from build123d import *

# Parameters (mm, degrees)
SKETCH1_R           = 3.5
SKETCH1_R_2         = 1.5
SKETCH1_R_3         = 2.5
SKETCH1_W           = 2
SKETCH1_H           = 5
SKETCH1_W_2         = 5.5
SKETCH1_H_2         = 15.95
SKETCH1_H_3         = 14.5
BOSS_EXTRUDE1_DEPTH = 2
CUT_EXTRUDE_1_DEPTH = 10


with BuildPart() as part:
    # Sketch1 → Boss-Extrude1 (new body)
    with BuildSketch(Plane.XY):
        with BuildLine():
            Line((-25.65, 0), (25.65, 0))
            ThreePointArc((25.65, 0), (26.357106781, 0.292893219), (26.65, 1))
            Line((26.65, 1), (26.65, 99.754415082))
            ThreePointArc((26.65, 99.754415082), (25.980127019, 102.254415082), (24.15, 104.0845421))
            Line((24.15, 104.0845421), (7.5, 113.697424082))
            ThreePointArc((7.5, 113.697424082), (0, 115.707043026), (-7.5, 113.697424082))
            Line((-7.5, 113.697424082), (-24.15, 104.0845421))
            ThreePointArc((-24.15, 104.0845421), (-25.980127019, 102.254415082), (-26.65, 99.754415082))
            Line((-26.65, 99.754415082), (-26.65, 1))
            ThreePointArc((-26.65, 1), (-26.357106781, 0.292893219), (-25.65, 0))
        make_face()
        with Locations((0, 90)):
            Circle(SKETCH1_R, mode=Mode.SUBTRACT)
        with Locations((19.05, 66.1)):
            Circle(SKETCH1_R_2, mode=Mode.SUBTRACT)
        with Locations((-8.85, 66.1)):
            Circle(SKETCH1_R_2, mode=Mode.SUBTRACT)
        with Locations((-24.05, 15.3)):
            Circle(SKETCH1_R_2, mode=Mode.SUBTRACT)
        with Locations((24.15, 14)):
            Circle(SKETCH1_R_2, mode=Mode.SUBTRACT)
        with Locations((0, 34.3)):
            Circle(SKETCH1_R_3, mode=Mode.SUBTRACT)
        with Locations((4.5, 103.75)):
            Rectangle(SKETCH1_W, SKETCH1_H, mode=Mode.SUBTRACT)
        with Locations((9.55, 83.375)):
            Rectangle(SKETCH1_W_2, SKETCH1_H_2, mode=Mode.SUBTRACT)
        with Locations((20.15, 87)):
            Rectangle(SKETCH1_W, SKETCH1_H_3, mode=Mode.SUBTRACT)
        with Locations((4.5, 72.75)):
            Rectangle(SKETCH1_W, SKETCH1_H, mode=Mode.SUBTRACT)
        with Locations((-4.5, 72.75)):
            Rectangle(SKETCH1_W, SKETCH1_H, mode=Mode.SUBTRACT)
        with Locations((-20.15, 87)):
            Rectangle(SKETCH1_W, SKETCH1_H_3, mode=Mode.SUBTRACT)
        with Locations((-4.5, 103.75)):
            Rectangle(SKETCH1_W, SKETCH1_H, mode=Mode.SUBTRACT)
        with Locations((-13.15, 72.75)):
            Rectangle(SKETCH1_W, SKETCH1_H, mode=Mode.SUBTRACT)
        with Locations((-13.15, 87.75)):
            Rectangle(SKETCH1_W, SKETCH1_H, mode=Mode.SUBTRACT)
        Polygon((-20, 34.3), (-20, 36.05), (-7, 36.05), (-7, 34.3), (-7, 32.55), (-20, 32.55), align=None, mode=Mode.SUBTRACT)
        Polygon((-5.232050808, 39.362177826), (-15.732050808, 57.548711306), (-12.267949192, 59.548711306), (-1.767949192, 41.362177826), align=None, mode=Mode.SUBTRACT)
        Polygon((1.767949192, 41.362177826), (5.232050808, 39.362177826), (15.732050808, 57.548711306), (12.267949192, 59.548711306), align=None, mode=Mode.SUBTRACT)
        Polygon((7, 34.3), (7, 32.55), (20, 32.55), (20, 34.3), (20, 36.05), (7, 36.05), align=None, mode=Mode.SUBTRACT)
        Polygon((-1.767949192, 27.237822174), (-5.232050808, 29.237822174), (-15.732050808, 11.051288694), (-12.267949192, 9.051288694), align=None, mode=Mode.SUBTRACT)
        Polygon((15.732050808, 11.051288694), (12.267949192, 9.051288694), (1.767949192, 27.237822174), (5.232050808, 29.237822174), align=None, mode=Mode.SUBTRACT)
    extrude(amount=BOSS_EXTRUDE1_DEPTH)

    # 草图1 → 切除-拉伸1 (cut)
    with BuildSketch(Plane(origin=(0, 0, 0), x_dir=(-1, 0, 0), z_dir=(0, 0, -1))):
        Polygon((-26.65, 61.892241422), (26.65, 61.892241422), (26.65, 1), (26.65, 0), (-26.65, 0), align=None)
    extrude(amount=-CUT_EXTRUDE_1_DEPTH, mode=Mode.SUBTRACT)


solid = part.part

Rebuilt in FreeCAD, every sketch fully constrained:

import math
import FreeCAD as App
import Part
import Sketcher
Q = App.Units.Quantity

doc = App.newDocument("Part")
body = doc.addObject("PartDesign::Body", "Body")

# Sketch on XY plane
sketch1 = body.newObject("Sketcher::SketchObject", "Sketch")
sketch1.AttachmentSupport = (doc.getObject("XY_Plane"), [""])
sketch1.MapMode = "FlatFace"
sketch1.addGeometry([
    Part.LineSegment(App.Vector(-25.6, 0, 0), App.Vector(25.6, 0, 0)),  # 0
    Part.ArcOfCircle(Part.Circle(App.Vector(25.6, 1, 0), App.Vector(0, 0, 1), 1), math.radians(-90), math.radians(0)),  # 1
    Part.LineSegment(App.Vector(26.6, 1, 0), App.Vector(26.6, 99.8, 0)),  # 2
    Part.ArcOfCircle(Part.Circle(App.Vector(21.7, 99.8, 0), App.Vector(0, 0, 1), 5), math.radians(0), math.radians(60)),  # 3
    Part.LineSegment(App.Vector(24.1, 104.1, 0), App.Vector(7.5, 113.7, 0)),  # 4
    Part.ArcOfCircle(Part.Circle(App.Vector(0, 100.7, 0), App.Vector(0, 0, 1), 15), math.radians(60), math.radians(120)),  # 5
    Part.LineSegment(App.Vector(-7.5, 113.7, 0), App.Vector(-24.1, 104.1, 0)),  # 6
    Part.ArcOfCircle(Part.Circle(App.Vector(-21.7, 99.8, 0), App.Vector(0, 0, 1), 5), math.radians(120), math.radians(180)),  # 7
    Part.LineSegment(App.Vector(-26.6, 99.8, 0), App.Vector(-26.6, 1, 0)),  # 8
    Part.ArcOfCircle(Part.Circle(App.Vector(-25.6, 1, 0), App.Vector(0, 0, 1), 1), math.radians(-180), math.radians(-90)),  # 9
    Part.Circle(App.Vector(-24.1, 15.3, 0), App.Vector(0, 0, 1), 1.5),  # 10
    Part.LineSegment(App.Vector(-5.2, 29.2, 0), App.Vector(-1.8, 27.2, 0)),  # 11
    Part.LineSegment(App.Vector(-1.8, 27.2, 0), App.Vector(-12.3, 9.1, 0)),  # 12
    Part.LineSegment(App.Vector(-12.3, 9.1, 0), App.Vector(-15.7, 11.1, 0)),  # 13
    Part.LineSegment(App.Vector(-15.7, 11.1, 0), App.Vector(-5.2, 29.2, 0)),  # 14
    Part.LineSegment(App.Vector(-20, 32.5, 0), App.Vector(-20, 36, 0)),  # 15
    Part.LineSegment(App.Vector(-20, 36, 0), App.Vector(-7, 36, 0)),  # 16
    Part.LineSegment(App.Vector(-7, 36, 0), App.Vector(-7, 32.5, 0)),  # 17
    Part.LineSegment(App.Vector(-7, 32.5, 0), App.Vector(-20, 32.5, 0)),  # 18
    Part.Circle(App.Vector(0, 34.3, 0), App.Vector(0, 0, 1), 2.5),  # 19
    Part.LineSegment(App.Vector(-1.8, 41.4, 0), App.Vector(-5.2, 39.4, 0)),  # 20
    Part.LineSegment(App.Vector(-5.2, 39.4, 0), App.Vector(-15.7, 57.5, 0)),  # 21
    Part.LineSegment(App.Vector(-15.7, 57.5, 0), App.Vector(-12.3, 59.5, 0)),  # 22
    Part.LineSegment(App.Vector(-12.3, 59.5, 0), App.Vector(-1.8, 41.4, 0)),  # 23
    Part.LineSegment(App.Vector(5.2, 29.2, 0), App.Vector(15.7, 11.1, 0)),  # 24
    Part.LineSegment(App.Vector(15.7, 11.1, 0), App.Vector(12.3, 9.1, 0)),  # 25
    Part.LineSegment(App.Vector(12.3, 9.1, 0), App.Vector(1.8, 27.2, 0)),  # 26
    Part.LineSegment(App.Vector(1.8, 27.2, 0), App.Vector(5.2, 29.2, 0)),  # 27
    Part.Circle(App.Vector(24.1, 14, 0), App.Vector(0, 0, 1), 1.5),  # 28
    Part.LineSegment(App.Vector(5.2, 39.4, 0), App.Vector(1.8, 41.4, 0)),  # 29
    Part.LineSegment(App.Vector(1.8, 41.4, 0), App.Vector(12.3, 59.5, 0)),  # 30
    Part.LineSegment(App.Vector(12.3, 59.5, 0), App.Vector(15.7, 57.5, 0)),  # 31
    Part.LineSegment(App.Vector(15.7, 57.5, 0), App.Vector(5.2, 39.4, 0)),  # 32
    Part.LineSegment(App.Vector(7, 32.5, 0), App.Vector(7, 36, 0)),  # 33
    Part.LineSegment(App.Vector(7, 36, 0), App.Vector(20, 36, 0)),  # 34
    Part.LineSegment(App.Vector(20, 36, 0), App.Vector(20, 32.5, 0)),  # 35
    Part.LineSegment(App.Vector(20, 32.5, 0), App.Vector(7, 32.5, 0)),  # 36
    Part.LineSegment(App.Vector(-12.2, 70.2, 0), App.Vector(-14.2, 70.2, 0)),  # 37
    Part.LineSegment(App.Vector(-14.2, 70.2, 0), App.Vector(-14.2, 75.2, 0)),  # 38
    Part.LineSegment(App.Vector(-14.2, 75.2, 0), App.Vector(-12.2, 75.2, 0)),  # 39
    Part.LineSegment(App.Vector(-12.2, 75.2, 0), App.Vector(-12.2, 70.2, 0)),  # 40
    Part.Circle(App.Vector(-8.8, 66.1, 0), App.Vector(0, 0, 1), 1.5),  # 41
    Part.LineSegment(App.Vector(-3.5, 70.2, 0), App.Vector(-5.5, 70.2, 0)),  # 42
    Part.LineSegment(App.Vector(-5.5, 70.2, 0), App.Vector(-5.5, 75.2, 0)),  # 43
    Part.LineSegment(App.Vector(-5.5, 75.2, 0), App.Vector(-3.5, 75.2, 0)),  # 44
    Part.LineSegment(App.Vector(-3.5, 75.2, 0), App.Vector(-3.5, 70.2, 0)),  # 45
    Part.LineSegment(App.Vector(-19.1, 79.8, 0), App.Vector(-21.1, 79.8, 0)),  # 46
    Part.LineSegment(App.Vector(-21.1, 79.8, 0), App.Vector(-21.1, 94.2, 0)),  # 47
    Part.LineSegment(App.Vector(-21.1, 94.2, 0), App.Vector(-19.1, 94.2, 0)),  # 48
    Part.LineSegment(App.Vector(-19.1, 94.2, 0), App.Vector(-19.1, 79.8, 0)),  # 49
    Part.LineSegment(App.Vector(-12.2, 85.2, 0), App.Vector(-14.2, 85.2, 0)),  # 50
    Part.LineSegment(App.Vector(-14.2, 85.2, 0), App.Vector(-14.2, 90.2, 0)),  # 51
    Part.LineSegment(App.Vector(-14.2, 90.2, 0), App.Vector(-12.2, 90.2, 0)),  # 52
    Part.LineSegment(App.Vector(-12.2, 90.2, 0), App.Vector(-12.2, 85.2, 0)),  # 53
    Part.Circle(App.Vector(0, 90, 0), App.Vector(0, 0, 1), 3.5),  # 54
    Part.LineSegment(App.Vector(-3.5, 101.2, 0), App.Vector(-5.5, 101.2, 0)),  # 55
    Part.LineSegment(App.Vector(-5.5, 101.2, 0), App.Vector(-5.5, 106.2, 0)),  # 56
    Part.LineSegment(App.Vector(-5.5, 106.2, 0), App.Vector(-3.5, 106.2, 0)),  # 57
    Part.LineSegment(App.Vector(-3.5, 106.2, 0), App.Vector(-3.5, 101.2, 0)),  # 58
    Part.LineSegment(App.Vector(5.5, 70.2, 0), App.Vector(3.5, 70.2, 0)),  # 59
    Part.LineSegment(App.Vector(3.5, 70.2, 0), App.Vector(3.5, 75.2, 0)),  # 60
    Part.LineSegment(App.Vector(3.5, 75.2, 0), App.Vector(5.5, 75.2, 0)),  # 61
    Part.LineSegment(App.Vector(5.5, 75.2, 0), App.Vector(5.5, 70.2, 0)),  # 62
    Part.Circle(App.Vector(19.1, 66.1, 0), App.Vector(0, 0, 1), 1.5),  # 63
    Part.LineSegment(App.Vector(12.3, 75.4, 0), App.Vector(6.8, 75.4, 0)),  # 64
    Part.LineSegment(App.Vector(6.8, 75.4, 0), App.Vector(6.8, 91.3, 0)),  # 65
    Part.LineSegment(App.Vector(6.8, 91.3, 0), App.Vector(12.3, 91.3, 0)),  # 66
    Part.LineSegment(App.Vector(12.3, 91.3, 0), App.Vector(12.3, 75.4, 0)),  # 67
    Part.LineSegment(App.Vector(5.5, 101.2, 0), App.Vector(3.5, 101.2, 0)),  # 68
    Part.LineSegment(App.Vector(3.5, 101.2, 0), App.Vector(3.5, 106.2, 0)),  # 69
    Part.LineSegment(App.Vector(3.5, 106.2, 0), App.Vector(5.5, 106.2, 0)),  # 70
    Part.LineSegment(App.Vector(5.5, 106.2, 0), App.Vector(5.5, 101.2, 0)),  # 71
    Part.LineSegment(App.Vector(21.1, 79.8, 0), App.Vector(19.1, 79.8, 0)),  # 72
    Part.LineSegment(App.Vector(19.1, 79.8, 0), App.Vector(19.1, 94.2, 0)),  # 73
    Part.LineSegment(App.Vector(19.1, 94.2, 0), App.Vector(21.1, 94.2, 0)),  # 74
    Part.LineSegment(App.Vector(21.1, 94.2, 0), App.Vector(21.1, 79.8, 0)),  # 75
], False)
sketch1.addConstraint([
    Sketcher.Constraint("Tangent", 0, 2, 1, 1),
    Sketcher.Constraint("Tangent", 1, 2, 2, 1),
    Sketcher.Constraint("Tangent", 2, 2, 3, 1),
    Sketcher.Constraint("Tangent", 3, 2, 4, 1),
    Sketcher.Constraint("Tangent", 4, 2, 5, 1),
    Sketcher.Constraint("Tangent", 5, 2, 6, 1),
    Sketcher.Constraint("Tangent", 6, 2, 7, 1),
    Sketcher.Constraint("Tangent", 7, 2, 8, 1),
    Sketcher.Constraint("Tangent", 8, 2, 9, 1),
    Sketcher.Constraint("Tangent", 9, 2, 0, 1),
    Sketcher.Constraint("Coincident", 11, 2, 12, 1),
    Sketcher.Constraint("Coincident", 12, 2, 13, 1),
    Sketcher.Constraint("Coincident", 13, 2, 14, 1),
    Sketcher.Constraint("Coincident", 14, 2, 11, 1),
    Sketcher.Constraint("Coincident", 15, 2, 16, 1),
    Sketcher.Constraint("Coincident", 16, 2, 17, 1),
    Sketcher.Constraint("Coincident", 17, 2, 18, 1),
    Sketcher.Constraint("Coincident", 18, 2, 15, 1),
    Sketcher.Constraint("Coincident", 20, 2, 21, 1),
    Sketcher.Constraint("Coincident", 21, 2, 22, 1),
    Sketcher.Constraint("Coincident", 22, 2, 23, 1),
    Sketcher.Constraint("Coincident", 23, 2, 20, 1),
    Sketcher.Constraint("Coincident", 24, 2, 25, 1),
    Sketcher.Constraint("Coincident", 25, 2, 26, 1),
    Sketcher.Constraint("Coincident", 26, 2, 27, 1),
    Sketcher.Constraint("Coincident", 27, 2, 24, 1),
    Sketcher.Constraint("Coincident", 29, 2, 30, 1),
    Sketcher.Constraint("Coincident", 30, 2, 31, 1),
    Sketcher.Constraint("Coincident", 31, 2, 32, 1),
    Sketcher.Constraint("Coincident", 32, 2, 29, 1),
    Sketcher.Constraint("Coincident", 33, 2, 34, 1),
    Sketcher.Constraint("Coincident", 34, 2, 35, 1),
    Sketcher.Constraint("Coincident", 35, 2, 36, 1),
    Sketcher.Constraint("Coincident", 36, 2, 33, 1),
    Sketcher.Constraint("Coincident", 37, 2, 38, 1),
    Sketcher.Constraint("Coincident", 38, 2, 39, 1),
    Sketcher.Constraint("Coincident", 39, 2, 40, 1),
    Sketcher.Constraint("Coincident", 40, 2, 37, 1),
    Sketcher.Constraint("Coincident", 42, 2, 43, 1),
    Sketcher.Constraint("Coincident", 43, 2, 44, 1),
    Sketcher.Constraint("Coincident", 44, 2, 45, 1),
    Sketcher.Constraint("Coincident", 45, 2, 42, 1),
    Sketcher.Constraint("Coincident", 46, 2, 47, 1),
    Sketcher.Constraint("Coincident", 47, 2, 48, 1),
    Sketcher.Constraint("Coincident", 48, 2, 49, 1),
    Sketcher.Constraint("Coincident", 49, 2, 46, 1),
    Sketcher.Constraint("Coincident", 50, 2, 51, 1),
    Sketcher.Constraint("Coincident", 51, 2, 52, 1),
    Sketcher.Constraint("Coincident", 52, 2, 53, 1),
    Sketcher.Constraint("Coincident", 53, 2, 50, 1),
    Sketcher.Constraint("Coincident", 55, 2, 56, 1),
    Sketcher.Constraint("Coincident", 56, 2, 57, 1),
    Sketcher.Constraint("Coincident", 57, 2, 58, 1),
    Sketcher.Constraint("Coincident", 58, 2, 55, 1),
    Sketcher.Constraint("Coincident", 59, 2, 60, 1),
    Sketcher.Constraint("Coincident", 60, 2, 61, 1),
    Sketcher.Constraint("Coincident", 61, 2, 62, 1),
    Sketcher.Constraint("Coincident", 62, 2, 59, 1),
    Sketcher.Constraint("Coincident", 64, 2, 65, 1),
    Sketcher.Constraint("Coincident", 65, 2, 66, 1),
    Sketcher.Constraint("Coincident", 66, 2, 67, 1),
    Sketcher.Constraint("Coincident", 67, 2, 64, 1),
    Sketcher.Constraint("Coincident", 68, 2, 69, 1),
    Sketcher.Constraint("Coincident", 69, 2, 70, 1),
    Sketcher.Constraint("Coincident", 70, 2, 71, 1),
    Sketcher.Constraint("Coincident", 71, 2, 68, 1),
    Sketcher.Constraint("Coincident", 72, 2, 73, 1),
    Sketcher.Constraint("Coincident", 73, 2, 74, 1),
    Sketcher.Constraint("Coincident", 74, 2, 75, 1),
    Sketcher.Constraint("Coincident", 75, 2, 72, 1),
    Sketcher.Constraint("Horizontal", 0),
    Sketcher.Constraint("Vertical", 2),
    Sketcher.Constraint("Vertical", 8),
    Sketcher.Constraint("Vertical", 15),
    Sketcher.Constraint("Horizontal", 16),
    Sketcher.Constraint("Vertical", 17),
    Sketcher.Constraint("Horizontal", 18),
    Sketcher.Constraint("Vertical", 33),
    Sketcher.Constraint("Horizontal", 34),
    Sketcher.Constraint("Vertical", 35),
    Sketcher.Constraint("Horizontal", 36),
    Sketcher.Constraint("Horizontal", 37),
    Sketcher.Constraint("Vertical", 38),
    Sketcher.Constraint("Horizontal", 39),
    Sketcher.Constraint("Vertical", 40),
    Sketcher.Constraint("Horizontal", 42),
    Sketcher.Constraint("Vertical", 43),
    Sketcher.Constraint("Horizontal", 44),
    Sketcher.Constraint("Vertical", 45),
    Sketcher.Constraint("Horizontal", 46),
    Sketcher.Constraint("Vertical", 47),
    Sketcher.Constraint("Horizontal", 48),
    Sketcher.Constraint("Vertical", 49),
    Sketcher.Constraint("Horizontal", 50),
    Sketcher.Constraint("Vertical", 51),
    Sketcher.Constraint("Horizontal", 52),
    Sketcher.Constraint("Vertical", 53),
    Sketcher.Constraint("Horizontal", 55),
    Sketcher.Constraint("Vertical", 56),
    Sketcher.Constraint("Horizontal", 57),
    Sketcher.Constraint("Vertical", 58),
    Sketcher.Constraint("Horizontal", 59),
    Sketcher.Constraint("Vertical", 60),
    Sketcher.Constraint("Horizontal", 61),
    Sketcher.Constraint("Vertical", 62),
    Sketcher.Constraint("Horizontal", 64),
    Sketcher.Constraint("Vertical", 65),
    Sketcher.Constraint("Horizontal", 66),
    Sketcher.Constraint("Vertical", 67),
    Sketcher.Constraint("Horizontal", 68),
    Sketcher.Constraint("Vertical", 69),
    Sketcher.Constraint("Horizontal", 70),
    Sketcher.Constraint("Vertical", 71),
    Sketcher.Constraint("Horizontal", 72),
    Sketcher.Constraint("Vertical", 73),
    Sketcher.Constraint("Horizontal", 74),
    Sketcher.Constraint("Vertical", 75),
    Sketcher.Constraint("Equal", 3, 7),
    Sketcher.Constraint("Equal", 1, 9),
    Sketcher.Constraint("Equal", 10, 28),
    Sketcher.Constraint("Equal", 28, 41),
    Sketcher.Constraint("Equal", 41, 63),
    Sketcher.Constraint("Symmetric", 0, 2, 9, 2, -1, 1),
    Sketcher.Constraint("Symmetric", 4, 2, 5, 2, -2),
    Sketcher.Constraint("Symmetric", 13, 2, 24, 2, -2),
    Sketcher.Constraint("Symmetric", 12, 2, 25, 2, -2),
    Sketcher.Constraint("Symmetric", 11, 2, 26, 2, -2),
    Sketcher.Constraint("Symmetric", 14, 2, 27, 2, -2),
    Sketcher.Constraint("Symmetric", 23, 2, 29, 2, -2),
    Sketcher.Constraint("Symmetric", 22, 2, 30, 2, -2),
    Sketcher.Constraint("Symmetric", 21, 2, 31, 2, -2),
    Sketcher.Constraint("Symmetric", 20, 2, 32, 2, -2),
    Sketcher.Constraint("Symmetric", 16, 2, 33, 2, -2),
    Sketcher.Constraint("Symmetric", 18, 2, 35, 2, -2),
    Sketcher.Constraint("Symmetric", 45, 2, 59, 2, -2),
    Sketcher.Constraint("Symmetric", 43, 2, 61, 2, -2),
    Sketcher.Constraint("Symmetric", 58, 2, 68, 2, -2),
    Sketcher.Constraint("Symmetric", 56, 2, 70, 2, -2),
    Sketcher.Constraint("Symmetric", 49, 2, 72, 2, -2),
    Sketcher.Constraint("Symmetric", 47, 2, 74, 2, -2),
    Sketcher.Constraint("PointOnObject", 19, 3, -2),
    Sketcher.Constraint("PointOnObject", 54, 3, -2),
    Sketcher.Constraint("Parallel", 4, 11),
    Sketcher.Constraint("Perpendicular", 11, 12),
    Sketcher.Constraint("Perpendicular", 12, 13),
    Sketcher.Constraint("Perpendicular", 13, 14),
    Sketcher.Constraint("Parallel", 6, 20),
    Sketcher.Constraint("Perpendicular", 20, 21),
    Sketcher.Constraint("Perpendicular", 21, 22),
    Sketcher.Constraint("Perpendicular", 22, 23),
    Sketcher.Constraint("Horizontal", 41, 3, 63, 3),
    Sketcher.Constraint("Horizontal", 40, 2, 42, 2),
    Sketcher.Constraint("Horizontal", 39, 2, 43, 2),
    Sketcher.Constraint("Vertical", 28, 3, 3, 2),
    Sketcher.Constraint("Vertical", 14, 2, 20, 2),
    Sketcher.Constraint("Vertical", 13, 2, 21, 2),
    Sketcher.Constraint("Vertical", 12, 2, 22, 2),
    Sketcher.Constraint("Vertical", 38, 2, 50, 2),
    Sketcher.Constraint("Vertical", 40, 2, 52, 2),
    Sketcher.Constraint("Vertical", 43, 2, 55, 2),
    Sketcher.Constraint("Vertical", 45, 2, 57, 2),
    Sketcher.Constraint("Equal", 39, 42),
    Sketcher.Constraint("Equal", 44, 46),
    Sketcher.Constraint("Equal", 45, 51),
    Sketcher.Constraint("Equal", 53, 56),
    Sketcher.Constraint("Diameter", 10, Q("3 mm")),
    Sketcher.Constraint("Diameter", 19, Q("5 mm")),
    Sketcher.Constraint("Diameter", 54, Q("7 mm")),
    Sketcher.Constraint("Radius", 1, Q("1 mm")),
    Sketcher.Constraint("Radius", 3, Q("5 mm")),
    Sketcher.Constraint("Radius", 5, Q("15 mm")),
    Sketcher.Constraint("DistanceX", 16, 1, 16, 2, Q("13 mm")),
    Sketcher.Constraint("DistanceX", 37, 2, 37, 1, Q("2 mm")),
    Sketcher.Constraint("DistanceY", 38, 1, 38, 2, Q("5 mm")),
    Sketcher.Constraint("Angle", 4, Q("150 deg")),
    Sketcher.Constraint("Distance", 11, Q("4 mm")),
    Sketcher.Constraint("Distance", 12, Q("21 mm")),
    Sketcher.Constraint("DistanceX", 0, 1, 0, 2, Q("51.3 mm")),
    Sketcher.Constraint("DistanceX", 64, 2, 64, 1, Q("5.5 mm")),
    Sketcher.Constraint("DistanceY", 15, 1, 15, 2, Q("3.5 mm")),
    Sketcher.Constraint("DistanceY", 47, 1, 47, 2, Q("14.5 mm")),
    Sketcher.Constraint("DistanceY", -1, 1, 28, 3, Q("14 mm")),
    Sketcher.Constraint("DistanceY", -1, 1, 54, 3, Q("90 mm")),
    Sketcher.Constraint("DistanceX", 15, 2, -1, 1, Q("20 mm")),
    Sketcher.Constraint("DistanceY", 65, 1, 65, 2, Q("15.95 mm")),
    Sketcher.Constraint("DistanceY", -1, 1, 10, 3, Q("15.3 mm")),
    Sketcher.Constraint("DistanceY", -1, 1, 19, 3, Q("34.3 mm")),
    Sketcher.Constraint("DistanceY", -1, 1, 41, 3, Q("66.1 mm")),
    Sketcher.Constraint("DistanceX", 42, 2, -1, 1, Q("5.5 mm")),
    Sketcher.Constraint("DistanceX", -1, 1, 64, 2, Q("6.8 mm")),
    Sketcher.Constraint("DistanceY", -1, 1, 64, 2, Q("75.4 mm")),
    Sketcher.Constraint("DistanceX", 10, 3, -1, 1, Q("24.05 mm")),
    Sketcher.Constraint("DistanceX", 41, 3, -1, 1, Q("8.85 mm")),
    Sketcher.Constraint("DistanceX", -1, 1, 63, 3, Q("19.05 mm")),
    Sketcher.Constraint("DistanceY", -1, 1, 15, 2, Q("36.05 mm")),
    Sketcher.Constraint("DistanceX", 37, 2, -1, 1, Q("14.15 mm")),
    Sketcher.Constraint("DistanceY", -1, 1, 37, 2, Q("70.25 mm")),
    Sketcher.Constraint("DistanceX", 46, 2, -1, 1, Q("21.15 mm")),
    Sketcher.Constraint("DistanceY", -1, 1, 46, 2, Q("79.75 mm")),
    Sketcher.Constraint("DistanceY", -1, 1, 50, 2, Q("85.25 mm")),
    Sketcher.Constraint("DistanceY", -1, 1, 55, 2, Q("101.25 mm")),
    Sketcher.Constraint("DistanceY", 2, 1, 2, 2, Q("98.754415 mm")),
    Sketcher.Constraint("DistanceX", 11, 2, -1, 1, Q("1.767949 mm")),
    Sketcher.Constraint("DistanceY", -1, 1, 12, 2, Q("9.051289 mm")),
    Sketcher.Constraint("DistanceY", -1, 1, 21, 2, Q("57.548711 mm")),
])
pad1 = body.newObject("PartDesign::Pad", "Pad")
pad1.Profile = sketch1
pad1.Length = 2

# Sketch on XY plane
sketch2 = body.newObject("Sketcher::SketchObject", "Sketch001")
sketch2.AttachmentSupport = (doc.getObject("XY_Plane"), [""])
sketch2.MapMode = "FlatFace"
sketch2.addGeometry([
    Part.LineSegment(App.Vector(-27, 62, 0), App.Vector(27, 62, 0)),
    Part.LineSegment(App.Vector(27, 62, 0), App.Vector(27, 0, 0)),
    Part.LineSegment(App.Vector(27, 0, 0), App.Vector(-27, 0, 0)),
    Part.LineSegment(App.Vector(-27, 0, 0), App.Vector(-27, 62, 0)),
], False)
sketch2.addConstraint([
    Sketcher.Constraint("Coincident", 0, 2, 1, 1),
    Sketcher.Constraint("Coincident", 1, 2, 2, 1),
    Sketcher.Constraint("Coincident", 2, 2, 3, 1),
    Sketcher.Constraint("Coincident", 3, 2, 0, 1),
    Sketcher.Constraint("Horizontal", 0),
    Sketcher.Constraint("Vertical", 1),
    Sketcher.Constraint("Horizontal", 2),
    Sketcher.Constraint("Vertical", 3),
    Sketcher.Constraint("Symmetric", 1, 2, 2, 2, -1, 1),
    Sketcher.Constraint("DistanceX", 0, 1, 0, 2, Q("53.3 mm")),
    Sketcher.Constraint("DistanceY", 1, 2, 1, 1, Q("61.892241 mm")),
])
pocket1 = body.newObject("PartDesign::Pocket", "Pocket")
pocket1.Profile = sketch2
pocket1.Length = 10
pocket1.Reversed = True

doc.recompute()
